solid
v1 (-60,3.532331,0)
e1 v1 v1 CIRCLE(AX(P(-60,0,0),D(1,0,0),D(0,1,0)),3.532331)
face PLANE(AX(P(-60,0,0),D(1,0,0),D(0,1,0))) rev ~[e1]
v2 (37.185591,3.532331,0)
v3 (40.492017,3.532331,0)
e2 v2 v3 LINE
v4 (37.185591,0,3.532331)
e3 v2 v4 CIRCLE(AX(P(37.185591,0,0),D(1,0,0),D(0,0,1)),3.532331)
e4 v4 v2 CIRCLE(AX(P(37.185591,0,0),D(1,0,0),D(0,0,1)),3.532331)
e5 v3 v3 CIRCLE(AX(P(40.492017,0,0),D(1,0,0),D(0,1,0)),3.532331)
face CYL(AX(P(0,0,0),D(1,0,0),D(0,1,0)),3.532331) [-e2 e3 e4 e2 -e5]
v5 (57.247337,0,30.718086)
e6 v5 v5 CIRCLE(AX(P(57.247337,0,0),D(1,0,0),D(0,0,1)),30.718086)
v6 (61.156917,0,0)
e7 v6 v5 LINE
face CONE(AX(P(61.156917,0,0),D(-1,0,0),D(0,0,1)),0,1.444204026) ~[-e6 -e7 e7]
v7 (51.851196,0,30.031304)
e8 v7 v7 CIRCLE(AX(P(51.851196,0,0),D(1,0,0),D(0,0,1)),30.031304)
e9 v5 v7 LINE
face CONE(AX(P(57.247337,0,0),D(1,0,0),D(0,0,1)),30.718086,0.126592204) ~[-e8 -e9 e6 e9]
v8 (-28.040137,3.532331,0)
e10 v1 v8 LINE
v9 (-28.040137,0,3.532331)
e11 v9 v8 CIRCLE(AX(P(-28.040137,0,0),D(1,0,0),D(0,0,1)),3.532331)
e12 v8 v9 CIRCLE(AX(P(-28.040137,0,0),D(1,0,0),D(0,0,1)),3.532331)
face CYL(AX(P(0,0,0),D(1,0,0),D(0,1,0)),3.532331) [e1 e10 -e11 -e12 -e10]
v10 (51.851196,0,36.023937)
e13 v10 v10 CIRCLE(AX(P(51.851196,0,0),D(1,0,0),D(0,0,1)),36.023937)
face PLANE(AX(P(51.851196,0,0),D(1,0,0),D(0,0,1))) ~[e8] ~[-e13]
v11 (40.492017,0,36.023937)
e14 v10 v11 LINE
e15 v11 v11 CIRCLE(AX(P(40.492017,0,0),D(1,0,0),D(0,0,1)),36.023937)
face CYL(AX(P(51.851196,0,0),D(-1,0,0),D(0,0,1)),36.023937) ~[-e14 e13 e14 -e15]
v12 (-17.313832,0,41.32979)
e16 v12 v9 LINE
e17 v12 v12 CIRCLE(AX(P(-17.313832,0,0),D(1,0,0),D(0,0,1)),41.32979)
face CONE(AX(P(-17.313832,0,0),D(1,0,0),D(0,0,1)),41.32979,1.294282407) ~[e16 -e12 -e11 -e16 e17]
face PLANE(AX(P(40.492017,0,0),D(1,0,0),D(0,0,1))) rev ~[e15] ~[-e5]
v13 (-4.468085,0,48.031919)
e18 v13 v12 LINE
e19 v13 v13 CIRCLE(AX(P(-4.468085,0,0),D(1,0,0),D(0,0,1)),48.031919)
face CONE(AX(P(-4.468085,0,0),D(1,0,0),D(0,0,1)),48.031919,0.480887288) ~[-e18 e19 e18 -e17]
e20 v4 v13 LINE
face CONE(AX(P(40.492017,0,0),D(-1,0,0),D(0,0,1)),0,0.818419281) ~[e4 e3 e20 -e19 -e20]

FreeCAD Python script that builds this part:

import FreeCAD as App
import Part
import Sketcher
Q = App.Units.Quantity


def add_polygon(sketch, points):
    """Adds a closed chain of lines whose ends are joined by coincident constraints."""
    first, n = sketch.GeometryCount, len(points)
    for a, b in zip(points, points[1:] + points[:1]):
        sketch.addGeometry(Part.LineSegment(App.Vector(*a, 0), App.Vector(*b, 0)), False)
    for i in range(n):
        sketch.addConstraint(Sketcher.Constraint("Coincident", first + i, 2, first + (i + 1) % n, 1))

doc = App.newDocument("Part")
params = doc.addObject("Spreadsheet::Sheet", "Params")
for row, (alias, value) in enumerate([
    ("pad1_length", "120 mm"),
    ("revolution_angle", "360 deg"),
], start=1):
    params.set(f"A{row}", alias)
    params.set(f"B{row}", "=" + value)
    params.setAlias(f"B{row}", alias)

body = doc.addObject("PartDesign::Body", "Body")

# Sketch on YZ plane
sketch1 = body.newObject("Sketcher::SketchObject", "Sketch")
sketch1.AttachmentSupport = (doc.getObject("YZ_Plane"), [""])
sketch1.MapMode = "FlatFace"
sketch1.addGeometry(Part.Circle(App.Vector(0, 0, 0), App.Vector(0, 0, 1), 3.5), False)
sketch1.addConstraint([
    Sketcher.Constraint("Coincident", 0, 3, -1, 1),
    Sketcher.Constraint("Diameter", 0, Q("7.064662 mm")),
])
pad1 = body.newObject("PartDesign::Pad", "Pad")
pad1.Profile = sketch1
pad1.setExpression("Length", "Params.pad1_length")
pad1.Midplane = True

# Sketch on XZ plane
sketch2 = body.newObject("Sketcher::SketchObject", "Sketch001")
sketch2.AttachmentSupport = (doc.getObject("XZ_Plane"), [""])
sketch2.MapMode = "FlatFace"
add_polygon(sketch2, [(-17, 41), (-29, 0), (40, 0), (-4, 48)])  # lines 0-3
add_polygon(sketch2, [(40, 36), (40, 0), (61, 0), (57, 31), (52, 30), (52, 36)])  # lines 4-9
sketch2.addConstraint([
    Sketcher.Constraint("Horizontal", 1),
    Sketcher.Constraint("Vertical", 4),
    Sketcher.Constraint("Horizontal", 5),
    Sketcher.Constraint("Vertical", 8),
    Sketcher.Constraint("Horizontal", 9),
    Sketcher.Constraint("Coincident", 4, 2, 1, 2),
    Sketcher.Constraint("PointOnObject", 0, 2, -1),
    Sketcher.Constraint("Perpendicular", 6, 7),
    Sketcher.Constraint("DistanceX", 5, 1, 5, 2, Q("20.6649 mm")),
    Sketcher.Constraint("DistanceX", 2, 2, 5, 2, Q("65.625002 mm")),
    Sketcher.Constraint("DistanceX", 1, 1, 1, 2, Q("69.534572 mm")),
    Sketcher.Constraint("DistanceX", 9, 2, 9, 1, Q("11.359179 mm")),
    Sketcher.Constraint("Distance", 0, Q("42.961779 mm")),
    Sketcher.Constraint("Distance", 3, Q("14.489022 mm")),
    Sketcher.Constraint("Distance", 6, Q("30.965878 mm")),
    Sketcher.Constraint("Distance", 7, Q("5.43967 mm")),
    Sketcher.Constraint("DistanceY", 4, 2, 4, 1, Q("36.023937 mm")),
    Sketcher.Constraint("DistanceY", -1, 1, 2, 2, Q("48.031919 mm")),
    Sketcher.Constraint("DistanceX", 0, 2, -1, 1, Q("29.042555 mm")),
])
revolution = body.newObject("PartDesign::Revolution", "Revolution")
revolution.Profile = sketch2
revolution.ReferenceAxis = (sketch2, ["H_Axis"])
revolution.setExpression("Angle", "Params.revolution_angle")

doc.recompute()
